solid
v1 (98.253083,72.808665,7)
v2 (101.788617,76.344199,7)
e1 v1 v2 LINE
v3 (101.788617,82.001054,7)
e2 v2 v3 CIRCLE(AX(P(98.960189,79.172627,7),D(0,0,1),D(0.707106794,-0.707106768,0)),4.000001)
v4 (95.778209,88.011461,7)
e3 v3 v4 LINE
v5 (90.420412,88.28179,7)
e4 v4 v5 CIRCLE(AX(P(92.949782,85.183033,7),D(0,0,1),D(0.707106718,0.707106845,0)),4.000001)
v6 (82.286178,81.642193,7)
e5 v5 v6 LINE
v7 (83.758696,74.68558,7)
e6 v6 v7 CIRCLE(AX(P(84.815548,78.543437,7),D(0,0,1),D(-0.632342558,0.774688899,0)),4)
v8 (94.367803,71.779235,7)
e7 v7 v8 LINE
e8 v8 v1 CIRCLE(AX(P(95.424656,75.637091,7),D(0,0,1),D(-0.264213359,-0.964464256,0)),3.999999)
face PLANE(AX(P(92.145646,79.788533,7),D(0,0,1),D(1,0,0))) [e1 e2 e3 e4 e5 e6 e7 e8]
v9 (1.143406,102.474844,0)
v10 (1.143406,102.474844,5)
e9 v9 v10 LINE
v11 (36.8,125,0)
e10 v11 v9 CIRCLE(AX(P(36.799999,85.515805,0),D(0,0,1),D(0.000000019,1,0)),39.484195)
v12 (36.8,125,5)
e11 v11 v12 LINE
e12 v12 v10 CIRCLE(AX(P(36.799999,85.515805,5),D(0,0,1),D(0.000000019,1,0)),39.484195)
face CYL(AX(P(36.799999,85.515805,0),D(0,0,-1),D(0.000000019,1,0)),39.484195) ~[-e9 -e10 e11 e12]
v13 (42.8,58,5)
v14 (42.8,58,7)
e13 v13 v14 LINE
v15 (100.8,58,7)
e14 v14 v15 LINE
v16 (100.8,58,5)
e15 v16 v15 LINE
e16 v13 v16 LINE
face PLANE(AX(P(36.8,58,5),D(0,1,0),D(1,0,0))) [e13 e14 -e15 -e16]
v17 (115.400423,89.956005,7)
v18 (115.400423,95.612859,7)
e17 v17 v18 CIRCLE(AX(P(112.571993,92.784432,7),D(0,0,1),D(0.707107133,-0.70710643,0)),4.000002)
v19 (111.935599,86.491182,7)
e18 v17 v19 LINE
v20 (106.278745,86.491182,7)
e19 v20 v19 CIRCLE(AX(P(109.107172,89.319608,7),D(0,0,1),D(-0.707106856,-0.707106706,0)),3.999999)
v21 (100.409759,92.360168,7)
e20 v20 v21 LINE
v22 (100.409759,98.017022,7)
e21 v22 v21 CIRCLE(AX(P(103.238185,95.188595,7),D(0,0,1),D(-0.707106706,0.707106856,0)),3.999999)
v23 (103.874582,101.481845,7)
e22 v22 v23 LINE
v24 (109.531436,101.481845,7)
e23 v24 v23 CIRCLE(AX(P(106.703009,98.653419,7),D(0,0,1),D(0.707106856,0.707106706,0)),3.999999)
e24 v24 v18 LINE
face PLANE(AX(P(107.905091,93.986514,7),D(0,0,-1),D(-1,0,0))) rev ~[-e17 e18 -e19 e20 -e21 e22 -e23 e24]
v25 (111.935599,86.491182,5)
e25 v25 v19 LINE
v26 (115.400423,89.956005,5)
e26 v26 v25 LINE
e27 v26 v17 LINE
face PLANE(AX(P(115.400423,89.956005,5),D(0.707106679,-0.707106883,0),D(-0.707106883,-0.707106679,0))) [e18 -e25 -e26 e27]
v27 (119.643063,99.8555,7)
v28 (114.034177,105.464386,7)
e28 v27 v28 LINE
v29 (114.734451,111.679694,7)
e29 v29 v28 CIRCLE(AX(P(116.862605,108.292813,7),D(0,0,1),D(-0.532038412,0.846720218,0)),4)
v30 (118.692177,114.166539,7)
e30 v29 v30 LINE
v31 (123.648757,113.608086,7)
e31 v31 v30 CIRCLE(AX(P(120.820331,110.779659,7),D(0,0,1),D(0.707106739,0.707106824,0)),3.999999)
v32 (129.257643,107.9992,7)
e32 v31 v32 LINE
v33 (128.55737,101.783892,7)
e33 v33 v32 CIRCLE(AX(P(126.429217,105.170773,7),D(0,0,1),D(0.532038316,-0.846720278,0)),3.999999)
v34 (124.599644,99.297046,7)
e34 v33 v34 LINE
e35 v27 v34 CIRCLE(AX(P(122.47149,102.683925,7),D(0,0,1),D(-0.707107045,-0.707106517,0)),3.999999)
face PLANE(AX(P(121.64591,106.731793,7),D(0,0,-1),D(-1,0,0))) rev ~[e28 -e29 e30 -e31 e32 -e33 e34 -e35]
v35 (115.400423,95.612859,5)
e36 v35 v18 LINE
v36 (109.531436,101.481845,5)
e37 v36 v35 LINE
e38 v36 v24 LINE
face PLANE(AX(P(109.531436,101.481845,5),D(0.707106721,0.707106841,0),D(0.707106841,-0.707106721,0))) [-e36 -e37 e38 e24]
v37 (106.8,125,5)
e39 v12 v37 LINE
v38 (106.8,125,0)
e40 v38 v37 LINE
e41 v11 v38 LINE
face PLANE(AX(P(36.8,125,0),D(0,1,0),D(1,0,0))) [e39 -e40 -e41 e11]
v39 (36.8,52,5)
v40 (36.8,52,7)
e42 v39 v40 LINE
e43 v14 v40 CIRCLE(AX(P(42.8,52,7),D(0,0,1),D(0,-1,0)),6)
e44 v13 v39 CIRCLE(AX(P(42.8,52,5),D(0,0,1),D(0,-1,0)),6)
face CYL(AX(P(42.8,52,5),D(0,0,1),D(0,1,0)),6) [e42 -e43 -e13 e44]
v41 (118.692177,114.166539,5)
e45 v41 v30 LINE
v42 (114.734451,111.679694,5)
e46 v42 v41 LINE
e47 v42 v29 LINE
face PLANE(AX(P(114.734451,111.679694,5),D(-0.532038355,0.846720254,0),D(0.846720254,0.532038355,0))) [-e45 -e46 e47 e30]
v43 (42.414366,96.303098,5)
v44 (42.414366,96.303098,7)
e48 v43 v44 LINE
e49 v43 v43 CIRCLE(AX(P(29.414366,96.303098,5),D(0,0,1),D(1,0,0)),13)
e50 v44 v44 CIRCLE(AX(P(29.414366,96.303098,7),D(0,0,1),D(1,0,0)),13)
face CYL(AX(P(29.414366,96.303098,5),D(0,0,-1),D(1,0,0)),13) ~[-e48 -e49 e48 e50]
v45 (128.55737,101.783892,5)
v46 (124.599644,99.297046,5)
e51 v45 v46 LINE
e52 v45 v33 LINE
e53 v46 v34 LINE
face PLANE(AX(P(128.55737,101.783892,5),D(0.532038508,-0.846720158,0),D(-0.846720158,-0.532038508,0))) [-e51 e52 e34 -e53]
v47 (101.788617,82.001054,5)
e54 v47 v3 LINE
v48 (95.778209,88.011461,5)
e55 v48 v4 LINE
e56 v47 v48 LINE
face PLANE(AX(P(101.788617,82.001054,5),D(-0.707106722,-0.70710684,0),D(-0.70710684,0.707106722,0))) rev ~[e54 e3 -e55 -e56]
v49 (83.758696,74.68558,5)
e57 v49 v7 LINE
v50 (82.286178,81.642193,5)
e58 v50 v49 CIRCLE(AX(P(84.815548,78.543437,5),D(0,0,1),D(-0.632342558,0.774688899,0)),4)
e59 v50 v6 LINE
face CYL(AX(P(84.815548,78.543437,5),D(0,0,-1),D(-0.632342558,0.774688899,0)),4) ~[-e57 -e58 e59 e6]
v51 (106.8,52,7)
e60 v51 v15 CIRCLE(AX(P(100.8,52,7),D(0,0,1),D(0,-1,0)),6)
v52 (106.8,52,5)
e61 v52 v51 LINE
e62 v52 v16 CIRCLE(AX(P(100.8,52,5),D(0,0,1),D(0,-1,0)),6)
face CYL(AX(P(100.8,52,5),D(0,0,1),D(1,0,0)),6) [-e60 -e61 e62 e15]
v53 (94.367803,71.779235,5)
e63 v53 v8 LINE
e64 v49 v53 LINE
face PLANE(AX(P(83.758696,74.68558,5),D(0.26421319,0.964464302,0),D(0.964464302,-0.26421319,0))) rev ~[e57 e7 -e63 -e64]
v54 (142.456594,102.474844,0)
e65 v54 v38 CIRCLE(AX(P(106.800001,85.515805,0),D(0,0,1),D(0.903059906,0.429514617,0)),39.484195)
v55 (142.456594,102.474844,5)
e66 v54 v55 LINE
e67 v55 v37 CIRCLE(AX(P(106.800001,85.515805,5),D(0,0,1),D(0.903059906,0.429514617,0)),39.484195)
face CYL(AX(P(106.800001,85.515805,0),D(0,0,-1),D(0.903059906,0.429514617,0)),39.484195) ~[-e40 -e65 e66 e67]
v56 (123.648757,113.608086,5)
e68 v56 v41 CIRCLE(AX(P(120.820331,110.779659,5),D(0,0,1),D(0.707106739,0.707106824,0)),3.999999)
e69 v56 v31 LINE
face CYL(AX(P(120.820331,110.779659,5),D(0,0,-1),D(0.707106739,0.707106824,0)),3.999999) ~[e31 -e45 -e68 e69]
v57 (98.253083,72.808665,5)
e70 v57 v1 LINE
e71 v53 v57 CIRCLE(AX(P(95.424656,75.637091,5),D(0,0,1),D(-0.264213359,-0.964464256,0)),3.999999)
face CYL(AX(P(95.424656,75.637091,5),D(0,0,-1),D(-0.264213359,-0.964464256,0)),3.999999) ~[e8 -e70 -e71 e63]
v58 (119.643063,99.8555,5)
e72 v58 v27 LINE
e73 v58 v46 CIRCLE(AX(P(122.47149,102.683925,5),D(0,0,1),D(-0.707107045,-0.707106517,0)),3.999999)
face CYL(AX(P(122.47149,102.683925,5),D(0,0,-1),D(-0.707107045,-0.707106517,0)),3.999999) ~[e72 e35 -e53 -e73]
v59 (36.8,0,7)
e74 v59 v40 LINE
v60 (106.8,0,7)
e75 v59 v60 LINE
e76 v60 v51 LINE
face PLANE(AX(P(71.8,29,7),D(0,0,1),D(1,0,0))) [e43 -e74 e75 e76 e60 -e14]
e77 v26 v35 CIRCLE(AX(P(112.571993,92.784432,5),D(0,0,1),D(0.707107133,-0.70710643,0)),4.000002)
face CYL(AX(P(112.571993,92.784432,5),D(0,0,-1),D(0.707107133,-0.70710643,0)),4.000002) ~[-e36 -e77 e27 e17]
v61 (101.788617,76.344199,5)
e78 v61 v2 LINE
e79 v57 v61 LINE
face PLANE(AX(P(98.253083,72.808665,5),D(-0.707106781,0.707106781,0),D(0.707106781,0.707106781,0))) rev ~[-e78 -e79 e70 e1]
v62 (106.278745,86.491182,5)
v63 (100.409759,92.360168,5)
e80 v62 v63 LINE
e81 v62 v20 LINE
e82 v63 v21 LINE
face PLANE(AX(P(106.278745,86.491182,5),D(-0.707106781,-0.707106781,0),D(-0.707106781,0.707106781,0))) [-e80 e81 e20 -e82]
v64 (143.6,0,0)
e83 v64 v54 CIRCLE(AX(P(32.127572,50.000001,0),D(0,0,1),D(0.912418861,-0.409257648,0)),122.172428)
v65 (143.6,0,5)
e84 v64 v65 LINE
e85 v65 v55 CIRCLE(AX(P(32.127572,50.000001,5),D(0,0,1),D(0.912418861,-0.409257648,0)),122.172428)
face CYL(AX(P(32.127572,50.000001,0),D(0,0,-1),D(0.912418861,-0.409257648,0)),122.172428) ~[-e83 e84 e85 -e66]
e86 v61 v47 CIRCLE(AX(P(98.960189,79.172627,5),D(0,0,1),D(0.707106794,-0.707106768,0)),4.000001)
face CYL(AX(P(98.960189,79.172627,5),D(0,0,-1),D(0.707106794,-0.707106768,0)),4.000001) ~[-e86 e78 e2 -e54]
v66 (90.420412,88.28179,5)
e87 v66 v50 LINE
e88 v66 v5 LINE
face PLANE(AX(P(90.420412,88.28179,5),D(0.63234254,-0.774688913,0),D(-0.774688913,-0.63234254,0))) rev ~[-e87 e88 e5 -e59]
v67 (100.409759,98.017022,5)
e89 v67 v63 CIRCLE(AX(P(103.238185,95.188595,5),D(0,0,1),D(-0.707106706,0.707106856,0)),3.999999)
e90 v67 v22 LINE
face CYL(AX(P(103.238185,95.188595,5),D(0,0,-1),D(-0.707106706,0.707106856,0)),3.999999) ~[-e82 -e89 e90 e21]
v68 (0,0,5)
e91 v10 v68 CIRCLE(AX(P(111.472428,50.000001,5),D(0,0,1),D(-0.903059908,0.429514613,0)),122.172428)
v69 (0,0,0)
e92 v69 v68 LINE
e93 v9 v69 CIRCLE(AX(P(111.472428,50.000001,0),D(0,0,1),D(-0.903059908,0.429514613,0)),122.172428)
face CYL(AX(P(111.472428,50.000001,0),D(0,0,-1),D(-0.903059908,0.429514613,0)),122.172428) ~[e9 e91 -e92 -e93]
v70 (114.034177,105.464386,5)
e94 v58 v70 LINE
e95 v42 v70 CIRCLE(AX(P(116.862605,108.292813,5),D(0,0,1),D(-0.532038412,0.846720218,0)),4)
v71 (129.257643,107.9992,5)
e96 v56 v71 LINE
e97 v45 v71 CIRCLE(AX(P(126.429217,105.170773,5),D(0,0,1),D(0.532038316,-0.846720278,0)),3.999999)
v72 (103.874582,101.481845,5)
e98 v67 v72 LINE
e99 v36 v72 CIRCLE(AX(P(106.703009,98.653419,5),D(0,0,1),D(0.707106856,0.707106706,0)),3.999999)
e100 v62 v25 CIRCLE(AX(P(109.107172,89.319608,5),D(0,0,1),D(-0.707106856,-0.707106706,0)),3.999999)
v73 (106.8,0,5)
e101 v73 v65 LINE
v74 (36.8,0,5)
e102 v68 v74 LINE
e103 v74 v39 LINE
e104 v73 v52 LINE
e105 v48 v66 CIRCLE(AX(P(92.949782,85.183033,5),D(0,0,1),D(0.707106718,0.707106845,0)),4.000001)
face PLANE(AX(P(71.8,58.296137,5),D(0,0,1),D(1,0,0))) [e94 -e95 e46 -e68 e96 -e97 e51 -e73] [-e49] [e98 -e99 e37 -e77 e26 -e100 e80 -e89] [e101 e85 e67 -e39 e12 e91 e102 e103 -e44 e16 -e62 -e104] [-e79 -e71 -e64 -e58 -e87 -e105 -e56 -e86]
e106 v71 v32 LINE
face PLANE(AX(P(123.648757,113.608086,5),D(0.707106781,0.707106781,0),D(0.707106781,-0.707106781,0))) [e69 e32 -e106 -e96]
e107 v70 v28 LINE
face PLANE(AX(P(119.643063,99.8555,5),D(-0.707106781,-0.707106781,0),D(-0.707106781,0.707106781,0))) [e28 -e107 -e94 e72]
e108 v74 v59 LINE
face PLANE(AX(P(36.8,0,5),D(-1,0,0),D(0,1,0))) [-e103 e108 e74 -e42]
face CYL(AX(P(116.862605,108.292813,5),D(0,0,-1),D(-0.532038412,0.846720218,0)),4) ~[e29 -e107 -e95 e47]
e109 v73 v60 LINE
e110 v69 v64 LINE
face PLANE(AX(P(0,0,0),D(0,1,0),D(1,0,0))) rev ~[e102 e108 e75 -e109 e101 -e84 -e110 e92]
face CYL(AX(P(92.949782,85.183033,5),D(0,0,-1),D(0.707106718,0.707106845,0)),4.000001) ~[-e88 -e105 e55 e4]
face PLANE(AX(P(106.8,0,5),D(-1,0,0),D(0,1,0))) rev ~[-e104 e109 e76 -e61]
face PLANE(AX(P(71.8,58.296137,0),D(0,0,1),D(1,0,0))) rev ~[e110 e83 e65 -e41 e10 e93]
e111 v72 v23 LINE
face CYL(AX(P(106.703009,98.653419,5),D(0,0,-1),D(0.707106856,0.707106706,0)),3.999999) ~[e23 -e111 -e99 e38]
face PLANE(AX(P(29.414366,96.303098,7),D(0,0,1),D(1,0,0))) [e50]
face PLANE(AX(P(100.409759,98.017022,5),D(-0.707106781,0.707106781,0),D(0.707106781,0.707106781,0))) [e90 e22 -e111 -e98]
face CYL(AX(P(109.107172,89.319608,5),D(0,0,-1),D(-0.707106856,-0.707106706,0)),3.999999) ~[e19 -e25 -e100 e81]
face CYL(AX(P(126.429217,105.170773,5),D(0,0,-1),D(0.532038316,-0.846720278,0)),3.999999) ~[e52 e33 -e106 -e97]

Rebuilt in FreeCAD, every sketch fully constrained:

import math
import FreeCAD as App
import Part
import Sketcher
from FreeCAD import Vector


def edges_at(feature, points):
    """Names of the edges that pass closest to the given points."""
    edges = feature.Shape.Edges
    near = lambda p: min(range(len(edges)), key=lambda i: edges[i].distToShape(Part.Vertex(*p))[0])
    return sorted({f"Edge{near(p) + 1}" for p in points})


def add_polygon(sketch, points):
    """Adds a closed chain of lines whose ends are joined by coincident constraints."""
    first, n = sketch.GeometryCount, len(points)
    for a, b in zip(points, points[1:] + points[:1]):
        sketch.addGeometry(Part.LineSegment(App.Vector(*a, 0), App.Vector(*b, 0)), False)
    for i in range(n):
        sketch.addConstraint(Sketcher.Constraint("Coincident", first + i, 2, first + (i + 1) % n, 1))

doc = App.newDocument("Part")
params = doc.addObject("Spreadsheet::Sheet", "Params")
for row, (alias, value) in enumerate([
    ("sketch1_width", "70 mm"),
    ("sketch1_width2", "143.6 mm"),
    ("pad1_length", "5 mm"),
    ("sketch2_diameter", "26 mm"),
    ("sketch2_radius", "4 mm"),
    ("sketch2_width", "70 mm"),
    ("sketch2_height", "58 mm"),
    ("sketch2_length", "11 mm"),
    ("pad2_length", "2 mm"),
    ("fillet_radius", "6 mm"),
], start=1):
    params.set(f"A{row}", alias)
    params.set(f"B{row}", "=" + value)
    params.setAlias(f"B{row}", alias)

body = doc.addObject("PartDesign::Body", "Body")

sketch1 = doc.addObject("Sketcher::SketchObject", "Sketch")
body.addObject(sketch1)
sketch1.AttachmentSupport = (doc.XY_Plane, [""])
sketch1.MapMode = "FlatFace"
sketch1.addGeometry([
    Part.ArcOfCircle(Part.Circle(Vector(111, 50, 0), Vector(0, 0, 1), 122), math.radians(155), math.radians(204)),
    Part.LineSegment(Vector(0, 0, 0), Vector(144, 0, 0)),
    Part.ArcOfCircle(Part.Circle(Vector(32, 50, 0), Vector(0, 0, 1), 122), math.radians(-24), math.radians(25)),
    Part.ArcOfCircle(Part.Circle(Vector(107, 86, 0), Vector(0, 0, 1), 39), math.radians(25), math.radians(90)),
    Part.LineSegment(Vector(107, 125, 0), Vector(37, 125, 0)),
    Part.ArcOfCircle(Part.Circle(Vector(37, 86, 0), Vector(0, 0, 1), 39), math.radians(90), math.radians(155)),
], False)
sketch1.addConstraint([
    Sketcher.Constraint("Coincident", 0, 2, 1, 1),
    Sketcher.Constraint("Coincident", 1, 2, 2, 1),
    Sketcher.Constraint("Tangent", 2, 2, 3, 1),
    Sketcher.Constraint("Tangent", 3, 2, 4, 1),
    Sketcher.Constraint("Tangent", 4, 2, 5, 1),
    Sketcher.Constraint("Tangent", 5, 2, 0, 1),
    Sketcher.Constraint("Horizontal", 1),
    Sketcher.Constraint("Horizontal", 4),
    Sketcher.Constraint("Coincident", 0, 2, -1, 1),
    Sketcher.Constraint("Equal", 0, 2),
    Sketcher.Constraint("Equal", 3, 5),
    Sketcher.Constraint("Horizontal", 0, 3, 2, 3),
    Sketcher.Constraint("DistanceX", 4, 2, 4, 1, 70.0),
    Sketcher.Constraint("DistanceX", 1, 1, 1, 2, 143.6),
    Sketcher.Constraint("DistanceY", -1, 1, 0, 3, 50.000001),
    Sketcher.Constraint("DistanceY", -1, 1, 3, 2, 125.0),
    Sketcher.Constraint("Radius", 0, 122.172428),
])
sketch1.setExpression("Constraints[12]", "Params.sketch1_width")
sketch1.setExpression("Constraints[13]", "Params.sketch1_width2")
pad1 = doc.addObject("PartDesign::Pad", "Pad")
body.addObject(pad1)
pad1.Profile = sketch1
pad1.setExpression("Length", "Params.pad1_length")

sketch2 = doc.addObject("Sketcher::SketchObject", "Sketch001")
body.addObject(sketch2)
sketch2.AttachmentSupport = (doc.XY_Plane, [""])
sketch2.MapMode = "FlatFace"
sketch2.AttachmentOffset = App.Placement(Vector(0, 0, 5), App.Rotation())
sketch2.addGeometry(Part.Circle(Vector(29.4, 96.3, 0), Vector(0, 0, 1), 13), False)
sketch2.addGeometry(Part.LineSegment(Vector(118.7, 114.2, 0), Vector(114.7, 111.7, 0)), False)
sketch2.addGeometry(Part.ArcOfCircle(Part.Circle(Vector(116.9, 108.3, 0), Vector(0, 0, 1), 4), math.radians(122), math.radians(225)), False)
sketch2.addGeometry(Part.LineSegment(Vector(114, 105.5, 0), Vector(119.6, 99.9, 0)), False)
sketch2.addGeometry(Part.ArcOfCircle(Part.Circle(Vector(122.5, 102.7, 0), Vector(0, 0, 1), 4), math.radians(-135), math.radians(-58)), False)
sketch2.addGeometry(Part.LineSegment(Vector(124.6, 99.3, 0), Vector(128.6, 101.8, 0)), False)
sketch2.addGeometry(Part.ArcOfCircle(Part.Circle(Vector(126.4, 105.2, 0), Vector(0, 0, 1), 4), math.radians(-58), math.radians(45)), False)
sketch2.addGeometry(Part.LineSegment(Vector(129.3, 108, 0), Vector(123.6, 113.6, 0)), False)
sketch2.addGeometry(Part.ArcOfCircle(Part.Circle(Vector(120.8, 110.8, 0), Vector(0, 0, 1), 4), math.radians(45), math.radians(122)), False)
sketch2.addGeometry(Part.LineSegment(Vector(103.9, 101.5, 0), Vector(100.4, 98, 0)), False)
sketch2.addGeometry(Part.ArcOfCircle(Part.Circle(Vector(103.2, 95.2, 0), Vector(0, 0, 1), 4), math.radians(135), math.radians(225)), False)
sketch2.addGeometry(Part.LineSegment(Vector(100.4, 92.4, 0), Vector(106.3, 86.5, 0)), False)
sketch2.addGeometry(Part.ArcOfCircle(Part.Circle(Vector(109.1, 89.3, 0), Vector(0, 0, 1), 4), math.radians(-135), math.radians(-45)), False)
sketch2.addGeometry(Part.LineSegment(Vector(111.9, 86.5, 0), Vector(115.4, 90, 0)), False)
sketch2.addGeometry(Part.ArcOfCircle(Part.Circle(Vector(112.6, 92.8, 0), Vector(0, 0, 1), 4), math.radians(-45), math.radians(45)), False)
sketch2.addGeometry(Part.LineSegment(Vector(115.4, 95.6, 0), Vector(109.5, 101.5, 0)), False)
sketch2.addGeometry(Part.ArcOfCircle(Part.Circle(Vector(106.7, 98.7, 0), Vector(0, 0, 1), 4), math.radians(45), math.radians(135)), False)
sketch2.addGeometry(Part.LineSegment(Vector(90.4, 88.3, 0), Vector(82.3, 81.6, 0)), False)
sketch2.addGeometry(Part.ArcOfCircle(Part.Circle(Vector(84.8, 78.5, 0), Vector(0, 0, 1), 4), math.radians(129), math.radians(255)), False)
sketch2.addGeometry(Part.LineSegment(Vector(83.8, 74.7, 0), Vector(94.4, 71.8, 0)), False)
sketch2.addGeometry(Part.ArcOfCircle(Part.Circle(Vector(95.4, 75.6, 0), Vector(0, 0, 1), 4), math.radians(-105), math.radians(-45)), False)
sketch2.addGeometry(Part.LineSegment(Vector(98.3, 72.8, 0), Vector(101.8, 76.3, 0)), False)
sketch2.addGeometry(Part.ArcOfCircle(Part.Circle(Vector(99, 79.2, 0), Vector(0, 0, 1), 4), math.radians(-45), math.radians(45)), False)
sketch2.addGeometry(Part.LineSegment(Vector(101.8, 82, 0), Vector(95.8, 88, 0)), False)
sketch2.addGeometry(Part.ArcOfCircle(Part.Circle(Vector(92.9, 85.2, 0), Vector(0, 0, 1), 4), math.radians(45), math.radians(129)), False)
add_polygon(sketch2, [(36.8, 58), (36.8, 0), (106.8, 0), (106.8, 58)])
sketch2.addConstraint([
    Sketcher.Constraint("Tangent", 1, 2, 2, 1),
    Sketcher.Constraint("Tangent", 2, 2, 3, 1),
    Sketcher.Constraint("Tangent", 3, 2, 4, 1),
    Sketcher.Constraint("Tangent", 4, 2, 5, 1),
    Sketcher.Constraint("Tangent", 5, 2, 6, 1),
    Sketcher.Constraint("Tangent", 6, 2, 7, 1),
    Sketcher.Constraint("Tangent", 7, 2, 8, 1),
    Sketcher.Constraint("Tangent", 8, 2, 1, 1),
    Sketcher.Constraint("Tangent", 9, 2, 10, 1),
    Sketcher.Constraint("Tangent", 10, 2, 11, 1),
    Sketcher.Constraint("Tangent", 11, 2, 12, 1),
    Sketcher.Constraint("Tangent", 12, 2, 13, 1),
    Sketcher.Constraint("Tangent", 13, 2, 14, 1),
    Sketcher.Constraint("Tangent", 14, 2, 15, 1),
    Sketcher.Constraint("Tangent", 15, 2, 16, 1),
    Sketcher.Constraint("Tangent", 16, 2, 9, 1),
    Sketcher.Constraint("Tangent", 17, 2, 18, 1),
    Sketcher.Constraint("Tangent", 18, 2, 19, 1),
    Sketcher.Constraint("Tangent", 19, 2, 20, 1),
    Sketcher.Constraint("Tangent", 20, 2, 21, 1),
    Sketcher.Constraint("Tangent", 21, 2, 22, 1),
    Sketcher.Constraint("Tangent", 22, 2, 23, 1),
    Sketcher.Constraint("Tangent", 23, 2, 24, 1),
    Sketcher.Constraint("Tangent", 24, 2, 17, 1),
    Sketcher.Constraint("Vertical", 25),
    Sketcher.Constraint("Horizontal", 26),
    Sketcher.Constraint("Vertical", 27),
    Sketcher.Constraint("Horizontal", 28),
    Sketcher.Constraint("Equal", 2, 4),
    Sketcher.Constraint("Equal", 4, 6),
    Sketcher.Constraint("Equal", 6, 8),
    Sketcher.Constraint("Equal", 8, 10),
    Sketcher.Constraint("Equal", 10, 12),
    Sketcher.Constraint("Equal", 2, 14),
    Sketcher.Constraint("Equal", 12, 16),
    Sketcher.Constraint("Equal", 16, 18),
    Sketcher.Constraint("Equal", 18, 20),
    Sketcher.Constraint("Equal", 20, 22),
    Sketcher.Constraint("Equal", 22, 24),
    Sketcher.Constraint("PointOnObject", 25, 2, -1),
    Sketcher.Constraint("Parallel", 1, 5),
    Sketcher.Constraint("Parallel", 3, 7),
    Sketcher.Constraint("Perpendicular", 7, 9),
    Sketcher.Constraint("Perpendicular", 9, 11),
    Sketcher.Constraint("Perpendicular", 11, 13),
    Sketcher.Constraint("Perpendicular", 13, 15),
    Sketcher.Constraint("Perpendicular", 15, 21),
    Sketcher.Constraint("Perpendicular", 21, 23),
    Sketcher.Constraint("Horizontal", 11, 2, 12, 2),
    Sketcher.Constraint("Diameter", 0, 26.0),
    Sketcher.Constraint("Radius", 2, 4.0),
    Sketcher.Constraint("DistanceX", 26, 1, 26, 2, 70.0),
    Sketcher.Constraint("DistanceY", 25, 2, 25, 1, 58.0),
    Sketcher.Constraint("Distance", 19, 11.0),
    Sketcher.Constraint("Distance", 21, 5.0),
    Sketcher.Constraint("Distance", 9, 4.9),
    Sketcher.Constraint("Distance", 11, 8.3),
    Sketcher.Constraint("Distance", 17, 10.500001),
    Sketcher.Constraint("Distance", 23, 8.5),
    Sketcher.Constraint("DistanceX", -1, 1, 25, 2, 36.8),
    Sketcher.Constraint("DistanceX", 4, 2, 6, 2, 4.657999),
    Sketcher.Constraint("DistanceY", -1, 1, 0, 3, 96.303098),
    Sketcher.Constraint("DistanceY", -1, 1, 3, 2, 99.8555),
    Sketcher.Constraint("DistanceY", -1, 1, 6, 2, 107.9992),
    Sketcher.Constraint("DistanceX", -1, 1, 12, 2, 111.935599),
    Sketcher.Constraint("DistanceY", -1, 1, 21, 2, 76.344199),
    Sketcher.Constraint("DistanceX", -1, 1, 4, 3, 122.47149),
    Sketcher.Constraint("DistanceX", -1, 1, 8, 3, 120.820331),
    Sketcher.Constraint("DistanceY", -1, 1, 12, 3, 89.319608),
    Sketcher.Constraint("DistanceX", -1, 1, 18, 3, 84.815548),
    Sketcher.Constraint("DistanceX", 0, 3, 2, 3, 87.448239),
])
sketch2.setExpression("Constraints[53]", "Params.sketch2_diameter")
sketch2.setExpression("Constraints[54]", "Params.sketch2_radius")
sketch2.setExpression("Constraints[55]", "Params.sketch2_width")
sketch2.setExpression("Constraints[56]", "Params.sketch2_height")
sketch2.setExpression("Constraints[57]", "Params.sketch2_length")
pad2 = doc.addObject("PartDesign::Pad", "Pad001")
body.addObject(pad2)
pad2.Profile = sketch2
pad2.setExpression("Length", "Params.pad2_length")
doc.recompute()

fillet = doc.addObject("PartDesign::Fillet", "Fillet")
body.addObject(fillet)
fillet.Base = (pad2, edges_at(pad2, [(36.8, 58, 6), (106.8, 58, 6)]))
fillet.setExpression("Radius", "Params.fillet_radius")

doc.recompute()
